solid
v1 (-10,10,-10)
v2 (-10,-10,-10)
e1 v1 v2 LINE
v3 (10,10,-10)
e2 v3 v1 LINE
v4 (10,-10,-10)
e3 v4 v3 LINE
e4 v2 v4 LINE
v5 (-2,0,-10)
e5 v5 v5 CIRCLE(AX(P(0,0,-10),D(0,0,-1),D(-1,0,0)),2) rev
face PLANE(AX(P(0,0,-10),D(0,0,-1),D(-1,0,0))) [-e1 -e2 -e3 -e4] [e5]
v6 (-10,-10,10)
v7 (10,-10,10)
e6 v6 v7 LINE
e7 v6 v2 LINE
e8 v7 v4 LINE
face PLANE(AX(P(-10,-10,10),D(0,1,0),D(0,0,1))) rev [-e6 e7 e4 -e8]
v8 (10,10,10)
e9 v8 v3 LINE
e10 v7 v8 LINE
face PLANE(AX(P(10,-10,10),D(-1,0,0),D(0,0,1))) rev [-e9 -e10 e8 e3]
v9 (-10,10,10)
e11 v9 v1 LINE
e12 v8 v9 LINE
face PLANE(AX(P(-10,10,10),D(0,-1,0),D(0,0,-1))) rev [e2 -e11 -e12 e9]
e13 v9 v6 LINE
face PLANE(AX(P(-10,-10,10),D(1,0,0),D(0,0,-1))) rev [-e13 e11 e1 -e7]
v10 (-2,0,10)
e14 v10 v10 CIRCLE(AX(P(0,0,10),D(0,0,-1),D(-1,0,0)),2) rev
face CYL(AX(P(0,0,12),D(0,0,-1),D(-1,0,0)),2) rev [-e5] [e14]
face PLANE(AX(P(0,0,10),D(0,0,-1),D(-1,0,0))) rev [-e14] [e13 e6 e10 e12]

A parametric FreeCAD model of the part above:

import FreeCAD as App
import Part
import Sketcher
from FreeCAD import Vector


def add_polygon(sketch, points):
    """Adds a closed chain of lines whose ends are joined by coincident constraints."""
    first, n = sketch.GeometryCount, len(points)
    for a, b in zip(points, points[1:] + points[:1]):
        sketch.addGeometry(Part.LineSegment(App.Vector(*a, 0), App.Vector(*b, 0)), False)
    for i in range(n):
        sketch.addConstraint(Sketcher.Constraint("Coincident", first + i, 2, first + (i + 1) % n, 1))

doc = App.newDocument("Part")
params = doc.addObject("Spreadsheet::Sheet", "Params")
for row, (alias, value) in enumerate([
    ("sketch1_width", "20 mm"),
    ("pad1_length", "20 mm"),
    ("sketch2_diameter", "4 mm"),
    ("pocket1_length", "24 mm"),
], start=1):
    params.set(f"A{row}", alias)
    params.set(f"B{row}", "=" + value)
    params.setAlias(f"B{row}", alias)

body = doc.addObject("PartDesign::Body", "Body")

sketch1 = body.newObject("Sketcher::SketchObject", "Sketch")
sketch1.AttachmentSupport = (doc.getObject("XY_Plane"), [""])
sketch1.MapMode = "FlatFace"
sketch1.AttachmentOffset = App.Placement(Vector(0, 0, -10), App.Rotation())
add_polygon(sketch1, [(-10, 10), (-10, -10), (10, -10), (10, 10)])
sketch1.addConstraint([
    Sketcher.Constraint("Vertical", 0),
    Sketcher.Constraint("Horizontal", 1),
    Sketcher.Constraint("Vertical", 2),
    Sketcher.Constraint("Horizontal", 3),
    Sketcher.Constraint("Symmetric", 0, 2, 2, 2, -1, 1),
    Sketcher.Constraint("Equal", 3, 0),
    Sketcher.Constraint("DistanceX", 1, 1, 1, 2, 20.0),
])
sketch1.setExpression("Constraints[10]", "Params.sketch1_width")
pad1 = body.newObject("PartDesign::Pad", "Pad")
pad1.Profile = sketch1
pad1.setExpression("Length", "Params.pad1_length")

sketch2 = body.newObject("Sketcher::SketchObject", "Sketch001")
sketch2.AttachmentSupport = (doc.getObject("XY_Plane"), [""])
sketch2.MapMode = "FlatFace"
sketch2.AttachmentOffset = App.Placement(Vector(0, 0, -12), App.Rotation())
sketch2.addGeometry(Part.Circle(Vector(0, 0, 0), Vector(0, 0, 1), 2), False)
sketch2.addConstraint([
    Sketcher.Constraint("Coincident", 0, 3, -1, 1),
    Sketcher.Constraint("Diameter", 0, 4.0),
])
sketch2.setExpression("Constraints[1]", "Params.sketch2_diameter")
pocket1 = body.newObject("PartDesign::Pocket", "Pocket")
pocket1.Profile = sketch2
pocket1.setExpression("Length", "Params.pocket1_length")
pocket1.Reversed = True

doc.recompute()
